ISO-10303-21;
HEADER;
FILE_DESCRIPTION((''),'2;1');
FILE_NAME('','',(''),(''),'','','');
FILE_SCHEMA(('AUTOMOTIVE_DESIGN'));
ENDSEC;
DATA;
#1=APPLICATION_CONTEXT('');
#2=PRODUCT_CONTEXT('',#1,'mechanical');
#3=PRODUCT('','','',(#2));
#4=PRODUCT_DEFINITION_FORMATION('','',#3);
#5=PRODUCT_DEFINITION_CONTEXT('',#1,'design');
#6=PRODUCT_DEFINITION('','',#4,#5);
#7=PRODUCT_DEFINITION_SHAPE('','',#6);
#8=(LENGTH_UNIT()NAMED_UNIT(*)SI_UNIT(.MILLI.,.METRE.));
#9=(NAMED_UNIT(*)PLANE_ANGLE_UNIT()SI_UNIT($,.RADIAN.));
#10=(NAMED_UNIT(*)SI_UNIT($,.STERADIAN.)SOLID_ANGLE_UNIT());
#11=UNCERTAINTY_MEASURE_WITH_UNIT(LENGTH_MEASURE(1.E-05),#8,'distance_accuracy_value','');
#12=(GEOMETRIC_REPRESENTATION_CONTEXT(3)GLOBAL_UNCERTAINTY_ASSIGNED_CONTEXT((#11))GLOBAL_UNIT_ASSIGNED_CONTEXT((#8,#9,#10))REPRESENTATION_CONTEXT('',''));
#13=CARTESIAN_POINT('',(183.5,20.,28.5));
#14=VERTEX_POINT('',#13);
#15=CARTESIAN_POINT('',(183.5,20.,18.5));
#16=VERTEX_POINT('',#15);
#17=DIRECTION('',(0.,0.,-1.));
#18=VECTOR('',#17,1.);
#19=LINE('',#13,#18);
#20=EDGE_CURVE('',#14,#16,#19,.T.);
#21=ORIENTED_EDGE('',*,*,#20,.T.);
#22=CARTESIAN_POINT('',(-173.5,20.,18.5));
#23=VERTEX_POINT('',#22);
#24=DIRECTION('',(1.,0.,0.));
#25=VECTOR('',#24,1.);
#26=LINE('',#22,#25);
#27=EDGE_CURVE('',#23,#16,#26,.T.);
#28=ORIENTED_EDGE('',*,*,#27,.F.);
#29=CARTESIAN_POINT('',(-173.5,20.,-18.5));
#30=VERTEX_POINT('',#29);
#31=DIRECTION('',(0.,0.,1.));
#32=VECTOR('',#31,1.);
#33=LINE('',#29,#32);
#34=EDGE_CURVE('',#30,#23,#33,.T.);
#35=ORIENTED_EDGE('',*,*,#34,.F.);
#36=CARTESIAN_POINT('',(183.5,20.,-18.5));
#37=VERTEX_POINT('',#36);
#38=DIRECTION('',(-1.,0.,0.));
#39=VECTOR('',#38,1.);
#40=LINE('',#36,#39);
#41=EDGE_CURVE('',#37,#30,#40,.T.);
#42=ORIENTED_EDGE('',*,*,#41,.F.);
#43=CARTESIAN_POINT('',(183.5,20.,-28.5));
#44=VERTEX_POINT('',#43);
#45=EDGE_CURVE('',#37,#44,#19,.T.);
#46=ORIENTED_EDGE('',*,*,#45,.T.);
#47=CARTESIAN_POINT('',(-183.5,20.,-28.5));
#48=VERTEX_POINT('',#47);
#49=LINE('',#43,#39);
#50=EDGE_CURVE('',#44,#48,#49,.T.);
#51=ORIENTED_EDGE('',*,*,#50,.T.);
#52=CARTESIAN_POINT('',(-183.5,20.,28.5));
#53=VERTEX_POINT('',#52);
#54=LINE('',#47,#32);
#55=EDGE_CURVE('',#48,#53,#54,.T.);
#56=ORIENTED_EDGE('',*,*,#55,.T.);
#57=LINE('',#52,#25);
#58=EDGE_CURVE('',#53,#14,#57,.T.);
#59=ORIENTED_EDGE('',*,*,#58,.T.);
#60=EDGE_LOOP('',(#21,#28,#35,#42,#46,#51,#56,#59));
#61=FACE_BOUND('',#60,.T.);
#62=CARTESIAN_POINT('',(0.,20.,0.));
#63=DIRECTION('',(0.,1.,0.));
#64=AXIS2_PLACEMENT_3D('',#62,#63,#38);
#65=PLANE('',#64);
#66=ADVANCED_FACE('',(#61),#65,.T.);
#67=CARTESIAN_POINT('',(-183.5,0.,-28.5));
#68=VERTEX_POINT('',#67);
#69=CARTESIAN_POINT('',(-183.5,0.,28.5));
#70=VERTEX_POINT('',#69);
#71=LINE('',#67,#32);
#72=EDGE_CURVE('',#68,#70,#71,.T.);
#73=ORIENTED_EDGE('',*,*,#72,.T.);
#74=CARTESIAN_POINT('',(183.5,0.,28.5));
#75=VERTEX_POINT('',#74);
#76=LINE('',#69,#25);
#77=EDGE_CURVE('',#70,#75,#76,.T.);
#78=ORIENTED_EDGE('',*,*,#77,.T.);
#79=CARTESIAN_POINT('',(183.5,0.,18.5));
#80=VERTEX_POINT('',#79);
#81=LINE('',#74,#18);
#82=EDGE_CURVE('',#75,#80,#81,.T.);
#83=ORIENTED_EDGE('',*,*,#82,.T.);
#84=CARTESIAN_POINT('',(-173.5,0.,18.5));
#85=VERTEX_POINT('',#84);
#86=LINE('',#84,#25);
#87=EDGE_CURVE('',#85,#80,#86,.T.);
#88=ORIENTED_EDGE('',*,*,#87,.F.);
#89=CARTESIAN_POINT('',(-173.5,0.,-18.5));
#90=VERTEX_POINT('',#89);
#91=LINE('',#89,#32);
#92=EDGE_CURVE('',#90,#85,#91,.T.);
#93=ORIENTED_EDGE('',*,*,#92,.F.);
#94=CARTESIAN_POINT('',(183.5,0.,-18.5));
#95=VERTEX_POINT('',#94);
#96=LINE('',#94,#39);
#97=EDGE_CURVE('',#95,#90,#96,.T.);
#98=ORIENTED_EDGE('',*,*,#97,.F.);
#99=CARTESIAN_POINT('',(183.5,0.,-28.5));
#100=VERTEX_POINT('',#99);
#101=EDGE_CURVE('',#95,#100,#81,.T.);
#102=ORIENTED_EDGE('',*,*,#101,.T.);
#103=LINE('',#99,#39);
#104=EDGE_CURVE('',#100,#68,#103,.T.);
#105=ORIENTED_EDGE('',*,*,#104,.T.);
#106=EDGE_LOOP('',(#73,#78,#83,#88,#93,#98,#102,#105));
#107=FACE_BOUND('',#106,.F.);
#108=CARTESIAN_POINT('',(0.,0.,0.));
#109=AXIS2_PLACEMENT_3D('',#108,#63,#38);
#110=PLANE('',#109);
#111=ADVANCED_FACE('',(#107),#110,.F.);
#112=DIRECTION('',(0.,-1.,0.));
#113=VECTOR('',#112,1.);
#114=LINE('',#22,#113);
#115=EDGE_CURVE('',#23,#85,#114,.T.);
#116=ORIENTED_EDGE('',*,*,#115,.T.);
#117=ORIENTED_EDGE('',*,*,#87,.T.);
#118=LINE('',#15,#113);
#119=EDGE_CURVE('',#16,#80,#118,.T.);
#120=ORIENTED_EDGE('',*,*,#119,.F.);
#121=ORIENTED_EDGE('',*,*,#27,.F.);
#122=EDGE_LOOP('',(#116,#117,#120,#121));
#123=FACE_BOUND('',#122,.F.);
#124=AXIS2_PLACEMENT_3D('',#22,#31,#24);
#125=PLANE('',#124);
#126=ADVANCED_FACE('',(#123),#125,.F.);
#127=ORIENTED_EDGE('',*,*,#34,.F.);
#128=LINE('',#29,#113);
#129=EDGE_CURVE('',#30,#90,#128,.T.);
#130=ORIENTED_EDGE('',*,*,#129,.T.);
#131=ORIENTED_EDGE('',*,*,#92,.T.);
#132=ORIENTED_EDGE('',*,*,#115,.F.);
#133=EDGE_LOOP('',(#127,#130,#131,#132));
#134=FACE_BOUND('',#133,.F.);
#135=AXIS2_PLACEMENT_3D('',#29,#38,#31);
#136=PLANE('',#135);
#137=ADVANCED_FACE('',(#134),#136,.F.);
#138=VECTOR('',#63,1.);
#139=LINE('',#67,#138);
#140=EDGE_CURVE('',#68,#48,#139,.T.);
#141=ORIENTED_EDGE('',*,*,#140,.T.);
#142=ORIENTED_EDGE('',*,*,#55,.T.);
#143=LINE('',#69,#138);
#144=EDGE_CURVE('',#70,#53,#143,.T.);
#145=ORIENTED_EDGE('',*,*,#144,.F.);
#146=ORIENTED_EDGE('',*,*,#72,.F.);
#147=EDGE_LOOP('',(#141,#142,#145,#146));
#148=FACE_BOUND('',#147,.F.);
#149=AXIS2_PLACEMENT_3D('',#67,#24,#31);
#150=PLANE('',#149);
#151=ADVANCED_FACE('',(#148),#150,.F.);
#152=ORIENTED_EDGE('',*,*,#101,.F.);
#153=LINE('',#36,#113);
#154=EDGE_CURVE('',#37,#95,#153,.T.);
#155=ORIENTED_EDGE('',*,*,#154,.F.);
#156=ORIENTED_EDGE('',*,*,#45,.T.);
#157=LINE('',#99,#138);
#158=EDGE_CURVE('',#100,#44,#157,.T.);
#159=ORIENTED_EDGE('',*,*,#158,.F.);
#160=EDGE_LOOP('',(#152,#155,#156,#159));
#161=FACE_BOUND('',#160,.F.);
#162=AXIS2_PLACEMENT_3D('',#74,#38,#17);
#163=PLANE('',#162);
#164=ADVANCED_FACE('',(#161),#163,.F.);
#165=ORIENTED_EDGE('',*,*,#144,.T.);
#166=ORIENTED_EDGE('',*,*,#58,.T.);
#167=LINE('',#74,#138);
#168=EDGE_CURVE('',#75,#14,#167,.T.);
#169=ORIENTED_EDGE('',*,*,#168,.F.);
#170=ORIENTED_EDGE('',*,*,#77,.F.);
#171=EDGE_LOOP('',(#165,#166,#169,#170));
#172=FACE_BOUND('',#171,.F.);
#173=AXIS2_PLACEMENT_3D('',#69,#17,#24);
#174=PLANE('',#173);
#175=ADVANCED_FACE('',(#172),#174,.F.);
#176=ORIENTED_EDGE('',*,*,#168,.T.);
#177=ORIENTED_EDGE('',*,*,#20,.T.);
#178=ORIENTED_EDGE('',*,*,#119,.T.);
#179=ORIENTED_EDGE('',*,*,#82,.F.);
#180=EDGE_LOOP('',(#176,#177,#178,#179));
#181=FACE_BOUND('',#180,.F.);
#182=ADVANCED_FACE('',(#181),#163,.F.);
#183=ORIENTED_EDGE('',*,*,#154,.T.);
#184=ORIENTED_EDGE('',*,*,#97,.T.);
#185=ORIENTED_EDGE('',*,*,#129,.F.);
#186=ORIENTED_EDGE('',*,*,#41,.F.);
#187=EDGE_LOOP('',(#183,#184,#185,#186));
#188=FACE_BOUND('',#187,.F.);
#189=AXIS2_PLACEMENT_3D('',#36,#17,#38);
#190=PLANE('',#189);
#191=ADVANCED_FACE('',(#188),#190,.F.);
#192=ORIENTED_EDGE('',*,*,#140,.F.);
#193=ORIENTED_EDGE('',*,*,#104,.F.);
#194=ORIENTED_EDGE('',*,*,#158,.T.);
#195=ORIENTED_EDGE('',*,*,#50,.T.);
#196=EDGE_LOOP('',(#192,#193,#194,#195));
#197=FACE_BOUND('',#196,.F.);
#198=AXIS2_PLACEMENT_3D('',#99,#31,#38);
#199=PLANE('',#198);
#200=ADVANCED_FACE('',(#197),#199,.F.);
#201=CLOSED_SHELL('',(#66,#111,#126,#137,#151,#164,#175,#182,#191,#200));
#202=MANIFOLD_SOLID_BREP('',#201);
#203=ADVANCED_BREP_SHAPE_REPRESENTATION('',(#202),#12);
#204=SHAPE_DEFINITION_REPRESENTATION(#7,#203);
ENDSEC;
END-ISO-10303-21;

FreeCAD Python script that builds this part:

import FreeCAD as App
import Part
import Sketcher
from FreeCAD import Vector


def add_polygon(sketch, points):
    """Adds a closed chain of lines whose ends are joined by coincident constraints."""
    first, n = sketch.GeometryCount, len(points)
    for a, b in zip(points, points[1:] + points[:1]):
        sketch.addGeometry(Part.LineSegment(App.Vector(*a, 0), App.Vector(*b, 0)), False)
    for i in range(n):
        sketch.addConstraint(Sketcher.Constraint("Coincident", first + i, 2, first + (i + 1) % n, 1))

doc = App.newDocument("Part")
body = doc.addObject("PartDesign::Body", "Body")

# Sketch on XZ plane
sketch1 = body.newObject("Sketcher::SketchObject", "Sketch")
sketch1.AttachmentSupport = (doc.getObject("XZ_Plane"), [""])
sketch1.MapMode = "FlatFace"
add_polygon(sketch1, [(183.5, 28.5), (183.5, -28.5), (-183.5, -28.5), (-183.5, 28.5)])  # lines 0-3
sketch1.addConstraint([
    Sketcher.Constraint("Vertical", 0),
    Sketcher.Constraint("Horizontal", 1),
    Sketcher.Constraint("Vertical", 2),
    Sketcher.Constraint("Horizontal", 3),
    Sketcher.Constraint("Symmetric", 0, 2, 2, 2, -1, 1),
    Sketcher.Constraint("DistanceX", 1, 2, 1, 1, 367.0),
    Sketcher.Constraint("DistanceY", 0, 2, 0, 1, 57.0),
])
pad1 = body.newObject("PartDesign::Pad", "Pad")
pad1.Profile = sketch1
pad1.Length = 20
pad1.Reversed = True

# Sketch on XZ plane
sketch2 = body.newObject("Sketcher::SketchObject", "Sketch001")
sketch2.AttachmentSupport = (doc.getObject("XZ_Plane"), [""])
sketch2.MapMode = "FlatFace"
sketch2.AttachmentOffset = App.Placement(Vector(0, 0, -20), App.Rotation())
add_polygon(sketch2, [(-173.5, 18.5), (183.5, 18.5), (183.5, -18.5), (-173.5, -18.5)])  # lines 0-3
sketch2.addConstraint([
    Sketcher.Constraint("Horizontal", 0),
    Sketcher.Constraint("Vertical", 1),
    Sketcher.Constraint("Horizontal", 2),
    Sketcher.Constraint("Vertical", 3),
    Sketcher.Constraint("DistanceX", 0, 1, 0, 2, 357.0),
    Sketcher.Constraint("DistanceY", 1, 2, 1, 1, 37.0),
    Sketcher.Constraint("DistanceX", -1, 1, 0, 2, 183.5),
    Sketcher.Constraint("DistanceY", -1, 1, 0, 2, 18.5),
])
pocket1 = body.newObject("PartDesign::Pocket", "Pocket")
pocket1.Profile = sketch2
pocket1.Length = 20
pocket1.Reversed = True

doc.recompute()
